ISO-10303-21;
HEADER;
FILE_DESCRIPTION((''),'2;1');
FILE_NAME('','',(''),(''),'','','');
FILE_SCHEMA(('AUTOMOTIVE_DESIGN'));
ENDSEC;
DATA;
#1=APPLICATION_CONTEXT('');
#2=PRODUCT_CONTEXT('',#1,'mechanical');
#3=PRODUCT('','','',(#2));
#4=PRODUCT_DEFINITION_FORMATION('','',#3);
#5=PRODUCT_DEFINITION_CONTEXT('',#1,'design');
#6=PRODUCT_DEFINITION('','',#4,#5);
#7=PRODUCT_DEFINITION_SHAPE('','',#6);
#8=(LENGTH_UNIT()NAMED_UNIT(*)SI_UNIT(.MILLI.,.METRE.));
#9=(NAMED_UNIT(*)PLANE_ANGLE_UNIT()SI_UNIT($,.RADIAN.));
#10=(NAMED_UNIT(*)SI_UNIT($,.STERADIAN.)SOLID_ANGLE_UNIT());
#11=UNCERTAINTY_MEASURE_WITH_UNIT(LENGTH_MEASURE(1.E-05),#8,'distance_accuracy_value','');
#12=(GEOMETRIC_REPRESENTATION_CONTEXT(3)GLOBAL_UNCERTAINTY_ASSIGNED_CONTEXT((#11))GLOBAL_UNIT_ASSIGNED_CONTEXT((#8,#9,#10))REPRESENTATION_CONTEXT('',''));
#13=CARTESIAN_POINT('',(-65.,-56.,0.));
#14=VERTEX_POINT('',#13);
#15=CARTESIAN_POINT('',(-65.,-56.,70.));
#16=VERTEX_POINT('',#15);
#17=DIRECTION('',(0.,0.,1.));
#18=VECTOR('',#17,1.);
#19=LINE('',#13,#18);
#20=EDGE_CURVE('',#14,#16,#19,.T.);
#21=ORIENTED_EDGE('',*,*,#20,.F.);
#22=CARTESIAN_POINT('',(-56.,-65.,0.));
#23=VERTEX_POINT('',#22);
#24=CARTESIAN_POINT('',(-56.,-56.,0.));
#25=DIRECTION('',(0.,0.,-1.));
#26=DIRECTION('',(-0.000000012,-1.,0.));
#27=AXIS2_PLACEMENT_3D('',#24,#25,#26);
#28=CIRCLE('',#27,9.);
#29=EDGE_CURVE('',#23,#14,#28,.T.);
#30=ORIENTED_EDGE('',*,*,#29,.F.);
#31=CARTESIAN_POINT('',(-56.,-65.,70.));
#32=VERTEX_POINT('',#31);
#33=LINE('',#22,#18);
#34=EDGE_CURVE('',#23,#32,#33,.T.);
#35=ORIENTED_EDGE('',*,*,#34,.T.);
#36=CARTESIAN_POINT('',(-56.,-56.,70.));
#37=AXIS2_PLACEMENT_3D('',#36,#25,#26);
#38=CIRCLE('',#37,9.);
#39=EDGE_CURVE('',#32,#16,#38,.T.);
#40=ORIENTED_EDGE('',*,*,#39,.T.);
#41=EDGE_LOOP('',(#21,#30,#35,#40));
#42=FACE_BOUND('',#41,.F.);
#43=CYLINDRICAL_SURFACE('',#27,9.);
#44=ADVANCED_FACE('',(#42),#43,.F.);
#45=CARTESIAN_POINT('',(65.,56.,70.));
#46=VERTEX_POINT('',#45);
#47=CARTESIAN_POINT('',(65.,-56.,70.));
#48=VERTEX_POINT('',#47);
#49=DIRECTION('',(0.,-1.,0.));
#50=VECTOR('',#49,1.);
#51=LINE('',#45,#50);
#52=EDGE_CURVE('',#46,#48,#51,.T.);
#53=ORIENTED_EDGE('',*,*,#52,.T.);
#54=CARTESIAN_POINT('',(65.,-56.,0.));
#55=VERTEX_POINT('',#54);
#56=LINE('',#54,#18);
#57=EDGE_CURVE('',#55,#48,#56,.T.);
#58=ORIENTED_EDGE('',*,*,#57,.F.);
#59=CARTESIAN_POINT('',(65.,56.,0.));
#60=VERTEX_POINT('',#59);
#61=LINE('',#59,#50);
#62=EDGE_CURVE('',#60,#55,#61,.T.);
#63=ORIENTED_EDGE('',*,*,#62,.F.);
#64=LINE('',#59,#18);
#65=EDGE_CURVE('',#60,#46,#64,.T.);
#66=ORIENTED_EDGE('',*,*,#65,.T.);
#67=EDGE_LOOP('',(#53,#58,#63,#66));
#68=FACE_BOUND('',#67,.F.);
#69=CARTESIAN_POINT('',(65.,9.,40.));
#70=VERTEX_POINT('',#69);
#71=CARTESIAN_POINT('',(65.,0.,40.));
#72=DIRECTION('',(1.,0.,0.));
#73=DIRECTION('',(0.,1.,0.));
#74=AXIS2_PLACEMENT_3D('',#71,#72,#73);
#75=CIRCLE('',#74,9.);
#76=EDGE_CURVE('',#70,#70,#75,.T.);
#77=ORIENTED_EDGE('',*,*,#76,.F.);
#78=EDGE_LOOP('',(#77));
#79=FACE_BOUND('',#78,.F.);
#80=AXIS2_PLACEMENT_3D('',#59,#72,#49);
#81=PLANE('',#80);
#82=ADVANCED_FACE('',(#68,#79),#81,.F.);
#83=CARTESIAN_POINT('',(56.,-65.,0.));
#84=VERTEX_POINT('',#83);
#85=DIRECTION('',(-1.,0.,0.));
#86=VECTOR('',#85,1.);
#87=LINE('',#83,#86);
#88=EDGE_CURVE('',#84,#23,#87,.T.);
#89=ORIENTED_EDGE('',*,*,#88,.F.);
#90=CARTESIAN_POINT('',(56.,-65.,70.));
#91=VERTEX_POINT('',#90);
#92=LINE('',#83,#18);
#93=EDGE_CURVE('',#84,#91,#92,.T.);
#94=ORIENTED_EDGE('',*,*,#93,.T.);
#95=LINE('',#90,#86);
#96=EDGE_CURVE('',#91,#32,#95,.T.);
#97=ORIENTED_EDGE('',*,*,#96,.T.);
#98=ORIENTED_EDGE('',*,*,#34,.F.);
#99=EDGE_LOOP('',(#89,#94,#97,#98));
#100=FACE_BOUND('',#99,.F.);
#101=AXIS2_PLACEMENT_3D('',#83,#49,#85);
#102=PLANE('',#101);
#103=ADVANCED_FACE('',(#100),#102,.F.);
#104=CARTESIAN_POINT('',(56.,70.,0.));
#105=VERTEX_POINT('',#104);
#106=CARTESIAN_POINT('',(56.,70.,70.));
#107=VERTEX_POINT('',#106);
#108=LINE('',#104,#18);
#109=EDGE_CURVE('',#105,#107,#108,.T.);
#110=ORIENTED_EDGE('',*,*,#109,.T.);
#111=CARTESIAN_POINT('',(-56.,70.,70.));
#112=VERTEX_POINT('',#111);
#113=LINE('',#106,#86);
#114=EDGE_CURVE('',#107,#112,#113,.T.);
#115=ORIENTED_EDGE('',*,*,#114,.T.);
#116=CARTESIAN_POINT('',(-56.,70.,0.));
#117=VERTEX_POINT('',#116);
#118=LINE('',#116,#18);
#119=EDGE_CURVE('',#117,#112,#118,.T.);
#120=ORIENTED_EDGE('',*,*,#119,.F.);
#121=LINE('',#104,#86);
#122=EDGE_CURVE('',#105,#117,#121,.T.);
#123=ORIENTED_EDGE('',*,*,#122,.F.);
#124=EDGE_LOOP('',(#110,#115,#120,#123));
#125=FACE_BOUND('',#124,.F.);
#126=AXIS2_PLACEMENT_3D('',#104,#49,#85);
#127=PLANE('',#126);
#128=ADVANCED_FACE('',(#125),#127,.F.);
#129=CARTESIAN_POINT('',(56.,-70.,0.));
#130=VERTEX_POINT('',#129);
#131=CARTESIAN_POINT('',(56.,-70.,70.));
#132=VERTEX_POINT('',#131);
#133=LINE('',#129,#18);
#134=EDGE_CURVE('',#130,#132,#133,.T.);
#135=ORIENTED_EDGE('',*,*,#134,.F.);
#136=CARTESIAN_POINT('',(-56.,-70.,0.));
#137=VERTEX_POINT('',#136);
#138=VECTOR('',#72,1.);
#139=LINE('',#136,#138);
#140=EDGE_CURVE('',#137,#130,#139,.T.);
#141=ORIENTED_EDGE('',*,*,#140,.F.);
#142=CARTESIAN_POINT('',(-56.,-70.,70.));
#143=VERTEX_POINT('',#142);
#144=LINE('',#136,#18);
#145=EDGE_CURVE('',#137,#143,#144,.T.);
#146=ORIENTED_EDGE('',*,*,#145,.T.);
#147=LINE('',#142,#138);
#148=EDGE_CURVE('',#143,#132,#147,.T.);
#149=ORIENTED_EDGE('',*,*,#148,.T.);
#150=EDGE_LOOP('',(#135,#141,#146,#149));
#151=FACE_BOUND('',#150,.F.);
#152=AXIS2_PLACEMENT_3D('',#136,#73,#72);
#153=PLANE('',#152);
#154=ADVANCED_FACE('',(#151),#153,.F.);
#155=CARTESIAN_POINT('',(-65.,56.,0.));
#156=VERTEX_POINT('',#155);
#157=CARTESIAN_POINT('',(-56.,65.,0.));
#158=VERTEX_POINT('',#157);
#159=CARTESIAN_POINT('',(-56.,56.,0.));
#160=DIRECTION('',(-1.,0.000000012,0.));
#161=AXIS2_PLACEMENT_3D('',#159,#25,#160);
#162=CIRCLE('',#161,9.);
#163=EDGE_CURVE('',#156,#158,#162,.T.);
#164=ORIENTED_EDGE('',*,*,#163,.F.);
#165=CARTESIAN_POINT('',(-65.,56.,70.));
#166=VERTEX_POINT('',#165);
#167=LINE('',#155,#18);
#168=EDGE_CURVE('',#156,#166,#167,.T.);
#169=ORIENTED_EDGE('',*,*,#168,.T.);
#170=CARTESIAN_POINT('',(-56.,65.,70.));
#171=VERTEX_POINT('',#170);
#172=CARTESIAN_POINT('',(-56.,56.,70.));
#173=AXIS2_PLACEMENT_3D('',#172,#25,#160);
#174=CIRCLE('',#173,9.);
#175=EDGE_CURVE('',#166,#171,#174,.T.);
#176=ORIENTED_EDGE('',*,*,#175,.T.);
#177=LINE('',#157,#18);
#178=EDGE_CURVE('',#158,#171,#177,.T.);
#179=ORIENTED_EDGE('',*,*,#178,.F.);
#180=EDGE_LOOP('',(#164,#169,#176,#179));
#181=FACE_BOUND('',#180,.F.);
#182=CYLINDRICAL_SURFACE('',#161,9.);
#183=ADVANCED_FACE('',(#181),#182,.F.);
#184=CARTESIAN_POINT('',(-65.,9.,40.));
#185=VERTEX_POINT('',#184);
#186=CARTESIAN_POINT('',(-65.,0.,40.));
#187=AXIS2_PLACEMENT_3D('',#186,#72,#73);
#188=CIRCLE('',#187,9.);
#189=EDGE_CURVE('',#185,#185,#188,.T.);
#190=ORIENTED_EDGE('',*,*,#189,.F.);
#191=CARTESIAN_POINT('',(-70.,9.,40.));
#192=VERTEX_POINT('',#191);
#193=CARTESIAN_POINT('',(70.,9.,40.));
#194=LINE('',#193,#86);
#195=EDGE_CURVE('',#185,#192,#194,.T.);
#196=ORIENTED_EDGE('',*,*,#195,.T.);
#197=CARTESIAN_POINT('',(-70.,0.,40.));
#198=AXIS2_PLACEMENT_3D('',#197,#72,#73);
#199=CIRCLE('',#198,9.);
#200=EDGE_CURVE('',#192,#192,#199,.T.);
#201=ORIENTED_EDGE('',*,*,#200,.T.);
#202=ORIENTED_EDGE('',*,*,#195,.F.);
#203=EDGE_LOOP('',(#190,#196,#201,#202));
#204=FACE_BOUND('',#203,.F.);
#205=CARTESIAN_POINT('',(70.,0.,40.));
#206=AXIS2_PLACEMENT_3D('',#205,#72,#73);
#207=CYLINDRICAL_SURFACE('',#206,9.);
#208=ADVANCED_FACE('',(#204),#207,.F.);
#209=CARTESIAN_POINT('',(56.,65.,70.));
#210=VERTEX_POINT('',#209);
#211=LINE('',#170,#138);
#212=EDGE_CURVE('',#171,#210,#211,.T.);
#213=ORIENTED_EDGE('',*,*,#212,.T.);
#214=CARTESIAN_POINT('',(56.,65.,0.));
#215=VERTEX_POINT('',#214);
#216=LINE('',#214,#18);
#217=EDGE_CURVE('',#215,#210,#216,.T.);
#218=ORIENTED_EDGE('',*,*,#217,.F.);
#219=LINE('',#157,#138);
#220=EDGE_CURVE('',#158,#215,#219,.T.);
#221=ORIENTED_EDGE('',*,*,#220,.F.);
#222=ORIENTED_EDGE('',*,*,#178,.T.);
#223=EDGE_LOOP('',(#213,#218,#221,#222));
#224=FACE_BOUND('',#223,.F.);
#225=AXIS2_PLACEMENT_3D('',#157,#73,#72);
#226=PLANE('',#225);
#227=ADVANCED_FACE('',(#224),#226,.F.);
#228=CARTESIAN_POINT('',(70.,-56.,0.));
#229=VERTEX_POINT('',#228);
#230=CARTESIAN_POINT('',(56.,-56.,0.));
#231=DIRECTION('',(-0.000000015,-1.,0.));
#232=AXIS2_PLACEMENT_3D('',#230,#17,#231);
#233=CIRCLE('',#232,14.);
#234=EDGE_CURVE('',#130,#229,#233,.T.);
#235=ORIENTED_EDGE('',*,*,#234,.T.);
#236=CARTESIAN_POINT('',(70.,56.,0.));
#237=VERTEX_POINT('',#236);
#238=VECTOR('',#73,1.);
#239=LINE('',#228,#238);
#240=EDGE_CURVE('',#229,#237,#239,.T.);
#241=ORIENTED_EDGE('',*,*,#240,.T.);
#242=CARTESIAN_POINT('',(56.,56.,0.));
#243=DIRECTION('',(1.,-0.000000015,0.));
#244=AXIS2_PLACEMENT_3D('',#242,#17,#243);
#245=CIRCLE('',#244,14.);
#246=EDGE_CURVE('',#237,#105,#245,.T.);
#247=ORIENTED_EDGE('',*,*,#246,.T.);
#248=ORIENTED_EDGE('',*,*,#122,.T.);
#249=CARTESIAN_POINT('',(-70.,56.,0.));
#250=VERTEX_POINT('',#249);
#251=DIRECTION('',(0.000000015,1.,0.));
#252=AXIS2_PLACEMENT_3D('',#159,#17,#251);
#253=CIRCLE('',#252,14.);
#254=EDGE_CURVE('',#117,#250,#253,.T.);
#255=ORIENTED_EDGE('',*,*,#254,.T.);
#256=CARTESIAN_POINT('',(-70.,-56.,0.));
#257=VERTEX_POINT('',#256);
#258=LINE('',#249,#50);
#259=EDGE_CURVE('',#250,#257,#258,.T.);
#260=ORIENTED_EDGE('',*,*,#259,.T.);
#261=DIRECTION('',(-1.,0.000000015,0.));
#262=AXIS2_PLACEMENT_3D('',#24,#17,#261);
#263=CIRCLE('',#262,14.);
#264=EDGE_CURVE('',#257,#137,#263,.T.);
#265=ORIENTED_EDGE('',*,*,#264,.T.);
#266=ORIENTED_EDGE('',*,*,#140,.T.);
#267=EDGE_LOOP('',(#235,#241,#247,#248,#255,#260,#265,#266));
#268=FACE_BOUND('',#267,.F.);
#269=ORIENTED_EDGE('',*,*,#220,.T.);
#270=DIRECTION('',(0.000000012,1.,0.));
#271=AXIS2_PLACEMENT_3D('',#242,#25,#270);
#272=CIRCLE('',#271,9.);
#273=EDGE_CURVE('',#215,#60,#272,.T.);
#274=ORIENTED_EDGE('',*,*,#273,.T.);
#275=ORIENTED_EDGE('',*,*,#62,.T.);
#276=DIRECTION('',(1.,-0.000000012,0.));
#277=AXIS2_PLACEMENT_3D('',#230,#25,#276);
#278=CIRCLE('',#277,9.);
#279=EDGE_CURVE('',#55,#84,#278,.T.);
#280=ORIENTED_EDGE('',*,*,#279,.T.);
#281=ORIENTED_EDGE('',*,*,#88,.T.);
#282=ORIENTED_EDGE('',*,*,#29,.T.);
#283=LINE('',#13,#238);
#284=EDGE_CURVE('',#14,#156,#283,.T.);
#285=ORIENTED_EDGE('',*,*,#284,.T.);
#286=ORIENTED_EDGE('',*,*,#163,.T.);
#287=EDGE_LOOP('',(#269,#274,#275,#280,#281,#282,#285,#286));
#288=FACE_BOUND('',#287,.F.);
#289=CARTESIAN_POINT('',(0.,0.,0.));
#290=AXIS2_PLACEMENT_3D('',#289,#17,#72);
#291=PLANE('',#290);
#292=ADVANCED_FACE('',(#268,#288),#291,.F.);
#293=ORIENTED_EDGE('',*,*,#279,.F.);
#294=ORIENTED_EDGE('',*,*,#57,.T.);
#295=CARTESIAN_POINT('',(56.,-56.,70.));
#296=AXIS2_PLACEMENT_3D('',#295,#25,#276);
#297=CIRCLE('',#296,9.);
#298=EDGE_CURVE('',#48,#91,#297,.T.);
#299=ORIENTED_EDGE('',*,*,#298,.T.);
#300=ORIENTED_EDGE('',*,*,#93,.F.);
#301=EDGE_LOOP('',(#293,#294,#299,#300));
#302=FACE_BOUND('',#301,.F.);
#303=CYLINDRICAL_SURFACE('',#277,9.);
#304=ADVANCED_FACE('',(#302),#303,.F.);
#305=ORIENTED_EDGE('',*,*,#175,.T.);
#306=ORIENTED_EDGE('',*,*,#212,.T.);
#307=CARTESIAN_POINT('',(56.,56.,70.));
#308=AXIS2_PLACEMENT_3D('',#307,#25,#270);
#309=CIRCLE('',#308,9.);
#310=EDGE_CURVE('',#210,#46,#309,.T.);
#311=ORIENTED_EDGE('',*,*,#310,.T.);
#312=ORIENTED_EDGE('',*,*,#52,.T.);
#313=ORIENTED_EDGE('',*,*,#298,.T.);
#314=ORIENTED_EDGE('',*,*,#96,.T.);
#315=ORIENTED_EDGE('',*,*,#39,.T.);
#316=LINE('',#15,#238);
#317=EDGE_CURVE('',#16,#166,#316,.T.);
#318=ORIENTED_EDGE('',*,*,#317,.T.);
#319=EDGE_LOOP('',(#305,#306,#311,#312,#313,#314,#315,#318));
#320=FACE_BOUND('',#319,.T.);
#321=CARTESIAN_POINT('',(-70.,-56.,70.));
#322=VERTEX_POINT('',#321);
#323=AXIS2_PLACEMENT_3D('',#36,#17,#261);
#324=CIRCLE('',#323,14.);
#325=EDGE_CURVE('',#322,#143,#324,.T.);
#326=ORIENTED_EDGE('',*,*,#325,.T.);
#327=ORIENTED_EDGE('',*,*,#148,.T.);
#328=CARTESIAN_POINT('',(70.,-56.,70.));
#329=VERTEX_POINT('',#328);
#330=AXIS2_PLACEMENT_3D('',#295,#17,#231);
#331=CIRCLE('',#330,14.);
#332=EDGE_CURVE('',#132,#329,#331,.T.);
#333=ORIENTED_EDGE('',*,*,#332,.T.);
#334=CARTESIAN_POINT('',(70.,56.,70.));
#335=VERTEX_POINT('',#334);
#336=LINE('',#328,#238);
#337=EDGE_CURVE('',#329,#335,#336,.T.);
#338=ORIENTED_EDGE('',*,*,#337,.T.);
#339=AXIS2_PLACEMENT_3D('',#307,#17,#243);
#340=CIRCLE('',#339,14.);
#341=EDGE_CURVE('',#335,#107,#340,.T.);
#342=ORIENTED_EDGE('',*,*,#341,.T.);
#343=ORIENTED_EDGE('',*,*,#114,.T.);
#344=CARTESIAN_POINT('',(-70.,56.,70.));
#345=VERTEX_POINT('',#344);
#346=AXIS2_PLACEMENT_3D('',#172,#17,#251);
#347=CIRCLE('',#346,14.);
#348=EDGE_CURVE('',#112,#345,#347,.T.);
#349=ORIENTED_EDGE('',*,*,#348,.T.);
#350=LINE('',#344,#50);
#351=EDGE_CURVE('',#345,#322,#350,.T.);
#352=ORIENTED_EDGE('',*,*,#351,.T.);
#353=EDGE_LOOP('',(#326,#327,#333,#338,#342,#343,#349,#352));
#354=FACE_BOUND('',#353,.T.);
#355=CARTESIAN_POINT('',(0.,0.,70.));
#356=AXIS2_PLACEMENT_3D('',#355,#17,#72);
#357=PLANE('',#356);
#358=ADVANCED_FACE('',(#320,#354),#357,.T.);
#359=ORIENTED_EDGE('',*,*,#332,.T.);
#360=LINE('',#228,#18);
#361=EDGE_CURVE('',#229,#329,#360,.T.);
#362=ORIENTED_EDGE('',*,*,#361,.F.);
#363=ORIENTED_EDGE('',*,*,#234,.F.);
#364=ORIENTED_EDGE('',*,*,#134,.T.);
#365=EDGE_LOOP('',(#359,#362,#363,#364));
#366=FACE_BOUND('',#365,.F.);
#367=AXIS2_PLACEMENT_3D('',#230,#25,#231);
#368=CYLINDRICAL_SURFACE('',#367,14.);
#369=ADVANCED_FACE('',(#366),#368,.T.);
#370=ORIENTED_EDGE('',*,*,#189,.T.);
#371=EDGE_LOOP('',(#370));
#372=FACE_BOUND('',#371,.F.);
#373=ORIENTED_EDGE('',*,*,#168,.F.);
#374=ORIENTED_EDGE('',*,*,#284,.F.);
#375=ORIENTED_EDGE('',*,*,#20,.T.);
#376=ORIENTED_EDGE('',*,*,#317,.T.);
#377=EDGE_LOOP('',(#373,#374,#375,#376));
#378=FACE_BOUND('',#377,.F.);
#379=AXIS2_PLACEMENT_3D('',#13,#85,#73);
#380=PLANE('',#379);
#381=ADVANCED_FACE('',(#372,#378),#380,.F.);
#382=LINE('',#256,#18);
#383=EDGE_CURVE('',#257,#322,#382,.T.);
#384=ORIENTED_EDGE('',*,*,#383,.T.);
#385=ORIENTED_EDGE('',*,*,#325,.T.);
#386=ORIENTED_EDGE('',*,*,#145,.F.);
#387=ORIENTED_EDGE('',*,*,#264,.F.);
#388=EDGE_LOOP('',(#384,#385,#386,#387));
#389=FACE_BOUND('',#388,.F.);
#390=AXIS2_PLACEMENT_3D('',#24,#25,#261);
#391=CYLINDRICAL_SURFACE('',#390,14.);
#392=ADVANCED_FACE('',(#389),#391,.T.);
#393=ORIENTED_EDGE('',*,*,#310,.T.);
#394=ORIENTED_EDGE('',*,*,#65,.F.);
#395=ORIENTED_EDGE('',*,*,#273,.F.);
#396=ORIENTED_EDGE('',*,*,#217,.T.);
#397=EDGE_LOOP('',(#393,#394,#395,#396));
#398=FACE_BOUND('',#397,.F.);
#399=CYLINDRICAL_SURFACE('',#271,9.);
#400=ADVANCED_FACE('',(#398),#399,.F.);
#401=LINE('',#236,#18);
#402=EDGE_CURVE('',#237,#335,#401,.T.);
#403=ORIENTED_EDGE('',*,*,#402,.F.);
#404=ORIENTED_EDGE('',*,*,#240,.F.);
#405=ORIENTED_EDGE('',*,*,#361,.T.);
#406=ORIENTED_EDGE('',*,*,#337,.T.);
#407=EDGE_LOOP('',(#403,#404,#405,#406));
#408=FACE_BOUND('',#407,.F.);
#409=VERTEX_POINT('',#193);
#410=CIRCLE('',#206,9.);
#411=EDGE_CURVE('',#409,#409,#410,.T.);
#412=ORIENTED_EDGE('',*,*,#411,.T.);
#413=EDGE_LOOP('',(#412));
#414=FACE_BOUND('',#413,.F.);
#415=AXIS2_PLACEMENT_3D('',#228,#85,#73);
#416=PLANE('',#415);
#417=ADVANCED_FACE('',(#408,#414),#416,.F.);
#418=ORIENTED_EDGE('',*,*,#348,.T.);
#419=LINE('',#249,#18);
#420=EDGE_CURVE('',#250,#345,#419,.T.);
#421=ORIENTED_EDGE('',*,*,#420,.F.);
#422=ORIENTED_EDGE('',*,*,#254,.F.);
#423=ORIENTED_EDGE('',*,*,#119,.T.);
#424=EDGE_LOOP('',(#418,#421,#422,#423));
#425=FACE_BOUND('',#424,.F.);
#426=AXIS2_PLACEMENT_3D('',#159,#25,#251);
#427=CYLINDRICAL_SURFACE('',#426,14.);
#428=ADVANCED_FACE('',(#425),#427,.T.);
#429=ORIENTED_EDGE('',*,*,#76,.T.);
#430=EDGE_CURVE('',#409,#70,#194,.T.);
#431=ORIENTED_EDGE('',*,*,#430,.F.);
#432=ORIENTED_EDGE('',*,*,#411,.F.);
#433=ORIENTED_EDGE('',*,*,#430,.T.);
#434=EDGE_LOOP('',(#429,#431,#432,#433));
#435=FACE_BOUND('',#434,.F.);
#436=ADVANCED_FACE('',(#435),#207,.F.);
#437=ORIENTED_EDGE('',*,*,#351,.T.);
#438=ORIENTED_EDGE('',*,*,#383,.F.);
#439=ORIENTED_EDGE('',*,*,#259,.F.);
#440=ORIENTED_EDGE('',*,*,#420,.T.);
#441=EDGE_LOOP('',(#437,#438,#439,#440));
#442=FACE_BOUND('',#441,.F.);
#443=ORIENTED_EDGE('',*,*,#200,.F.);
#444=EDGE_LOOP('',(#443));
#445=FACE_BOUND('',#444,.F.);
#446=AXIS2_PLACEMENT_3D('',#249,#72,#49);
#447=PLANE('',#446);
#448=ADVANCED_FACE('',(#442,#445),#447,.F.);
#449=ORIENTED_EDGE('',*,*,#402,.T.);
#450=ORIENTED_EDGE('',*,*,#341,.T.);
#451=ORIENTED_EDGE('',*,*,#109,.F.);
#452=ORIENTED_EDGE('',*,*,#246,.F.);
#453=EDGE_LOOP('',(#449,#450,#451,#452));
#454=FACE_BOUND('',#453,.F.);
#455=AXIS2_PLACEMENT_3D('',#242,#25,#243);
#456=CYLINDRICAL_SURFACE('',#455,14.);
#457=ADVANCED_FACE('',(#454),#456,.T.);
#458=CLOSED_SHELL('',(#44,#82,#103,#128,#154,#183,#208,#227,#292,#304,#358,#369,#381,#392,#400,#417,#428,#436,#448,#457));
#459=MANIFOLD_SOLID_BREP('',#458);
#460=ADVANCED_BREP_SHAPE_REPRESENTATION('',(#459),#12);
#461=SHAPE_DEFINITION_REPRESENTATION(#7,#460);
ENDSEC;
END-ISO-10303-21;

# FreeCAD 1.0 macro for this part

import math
import FreeCAD as App
import Part
import Sketcher
Q = App.Units.Quantity

doc = App.newDocument("Part")
params = doc.addObject("Spreadsheet::Sheet", "Params")
for row, (alias, value) in enumerate([
    ("sketch1_radius", "14 mm"),
    ("sketch1_radius2", "9 mm"),
    ("sketch1_width", "112 mm"),
    ("pad1_length", "70 mm"),
    ("sketch2_diameter", "18 mm"),
], start=1):
    params.set(f"A{row}", alias)
    params.set(f"B{row}", "=" + value)
    params.setAlias(f"B{row}", alias)

body = doc.addObject("PartDesign::Body", "Body")

# Sketch on XY plane
sketch1 = body.newObject("Sketcher::SketchObject", "Sketch")
sketch1.AttachmentSupport = (doc.getObject("XY_Plane"), [""])
sketch1.MapMode = "FlatFace"
sketch1.addGeometry([
    Part.LineSegment(App.Vector(-56, -70, 0), App.Vector(56, -70, 0)),  # 0
    Part.ArcOfCircle(Part.Circle(App.Vector(56, -56, 0), App.Vector(0, 0, 1), 14), math.radians(-90.000001), math.radians(0.000001)),  # 1
    Part.LineSegment(App.Vector(70, -56, 0), App.Vector(70, 56, 0)),  # 2
    Part.ArcOfCircle(Part.Circle(App.Vector(56, 56, 0), App.Vector(0, 0, 1), 14), math.radians(-0.000001), math.radians(90.000001)),  # 3
    Part.LineSegment(App.Vector(56, 70, 0), App.Vector(-56, 70, 0)),  # 4
    Part.ArcOfCircle(Part.Circle(App.Vector(-56, 56, 0), App.Vector(0, 0, 1), 14), math.radians(89.999999), math.radians(180.000001)),  # 5
    Part.LineSegment(App.Vector(-70, 56, 0), App.Vector(-70, -56, 0)),  # 6
    Part.ArcOfCircle(Part.Circle(App.Vector(-56, -56, 0), App.Vector(0, 0, 1), 14), math.radians(179.999999), math.radians(270.000001)),  # 7
    Part.LineSegment(App.Vector(56, -65, 0), App.Vector(-56, -65, 0)),  # 8
    Part.ArcOfCircle(Part.Circle(App.Vector(-56, -56, 0), App.Vector(0, 0, 1), 9), math.radians(-179.999999), math.radians(-90.000001)),  # 9
    Part.LineSegment(App.Vector(-65, -56, 0), App.Vector(-65, 56, 0)),  # 10
    Part.ArcOfCircle(Part.Circle(App.Vector(-56, 56, 0), App.Vector(0, 0, 1), 9), math.radians(90.000001), math.radians(179.999999)),  # 11
    Part.LineSegment(App.Vector(-56, 65, 0), App.Vector(56, 65, 0)),  # 12
    Part.ArcOfCircle(Part.Circle(App.Vector(56, 56, 0), App.Vector(0, 0, 1), 9), math.radians(0.000001), math.radians(89.999999)),  # 13
    Part.LineSegment(App.Vector(65, 56, 0), App.Vector(65, -56, 0)),  # 14
    Part.ArcOfCircle(Part.Circle(App.Vector(56, -56, 0), App.Vector(0, 0, 1), 9), math.radians(-89.999999), math.radians(-0.000001)),  # 15
], False)
sketch1.addConstraint([
    Sketcher.Constraint("Tangent", 0, 2, 1, 1),
    Sketcher.Constraint("Tangent", 1, 2, 2, 1),
    Sketcher.Constraint("Tangent", 2, 2, 3, 1),
    Sketcher.Constraint("Tangent", 3, 2, 4, 1),
    Sketcher.Constraint("Tangent", 4, 2, 5, 1),
    Sketcher.Constraint("Tangent", 5, 2, 6, 1),
    Sketcher.Constraint("Tangent", 6, 2, 7, 1),
    Sketcher.Constraint("Tangent", 7, 2, 0, 1),
    Sketcher.Constraint("Tangent", 8, 2, 9, 2),
    Sketcher.Constraint("Tangent", 9, 1, 10, 1),
    Sketcher.Constraint("Tangent", 10, 2, 11, 2),
    Sketcher.Constraint("Tangent", 11, 1, 12, 1),
    Sketcher.Constraint("Tangent", 12, 2, 13, 2),
    Sketcher.Constraint("Tangent", 13, 1, 14, 1),
    Sketcher.Constraint("Tangent", 14, 2, 15, 2),
    Sketcher.Constraint("Tangent", 15, 1, 8, 1),
    Sketcher.Constraint("Horizontal", 0),
    Sketcher.Constraint("Vertical", 2),
    Sketcher.Constraint("Horizontal", 4),
    Sketcher.Constraint("Vertical", 6),
    Sketcher.Constraint("Horizontal", 8),
    Sketcher.Constraint("Vertical", 10),
    Sketcher.Constraint("Horizontal", 12),
    Sketcher.Constraint("Vertical", 14),
    Sketcher.Constraint("Coincident", 9, 3, 7, 3),
    Sketcher.Constraint("Coincident", 11, 3, 5, 3),
    Sketcher.Constraint("Coincident", 13, 3, 3, 3),
    Sketcher.Constraint("Equal", 1, 3),
    Sketcher.Constraint("Equal", 3, 5),
    Sketcher.Constraint("Equal", 5, 7),
    Sketcher.Constraint("Equal", 13, 15),
    Sketcher.Constraint("Symmetric", 1, 3, 5, 3, -1, 1),
    Sketcher.Constraint("Equal", 12, 2),
    Sketcher.Constraint("Radius", 1, Q("14 mm")),
    Sketcher.Constraint("Radius", 9, Q("9 mm")),
    Sketcher.Constraint("DistanceX", 0, 1, 0, 2, Q("112 mm")),
])
sketch1.setExpression("Constraints[33]", "Params.sketch1_radius")
sketch1.setExpression("Constraints[34]", "Params.sketch1_radius2")
sketch1.setExpression("Constraints[35]", "Params.sketch1_width")
pad1 = body.newObject("PartDesign::Pad", "Pad")
pad1.Profile = sketch1
pad1.setExpression("Length", "Params.pad1_length")

# Sketch on YZ plane
sketch2 = body.newObject("Sketcher::SketchObject", "Sketch001")
sketch2.AttachmentSupport = (doc.getObject("YZ_Plane"), [""])
sketch2.MapMode = "FlatFace"
sketch2.AttachmentOffset = App.Placement(App.Vector(0, 0, 70), App.Rotation())
sketch2.addGeometry(Part.Circle(App.Vector(0, 40, 0), App.Vector(0, 0, 1), 9), False)
sketch2.addConstraint([
    Sketcher.Constraint("PointOnObject", 0, 3, -2),
    Sketcher.Constraint("Diameter", 0, Q("18 mm")),
    Sketcher.Constraint("DistanceY", -1, 1, 0, 3, Q("40 mm")),
])
sketch2.setExpression("Constraints[1]", "Params.sketch2_diameter")
pocket1 = body.newObject("PartDesign::Pocket", "Pocket")
pocket1.Profile = sketch2
pocket1.Type = "ThroughAll"

doc.recompute()
